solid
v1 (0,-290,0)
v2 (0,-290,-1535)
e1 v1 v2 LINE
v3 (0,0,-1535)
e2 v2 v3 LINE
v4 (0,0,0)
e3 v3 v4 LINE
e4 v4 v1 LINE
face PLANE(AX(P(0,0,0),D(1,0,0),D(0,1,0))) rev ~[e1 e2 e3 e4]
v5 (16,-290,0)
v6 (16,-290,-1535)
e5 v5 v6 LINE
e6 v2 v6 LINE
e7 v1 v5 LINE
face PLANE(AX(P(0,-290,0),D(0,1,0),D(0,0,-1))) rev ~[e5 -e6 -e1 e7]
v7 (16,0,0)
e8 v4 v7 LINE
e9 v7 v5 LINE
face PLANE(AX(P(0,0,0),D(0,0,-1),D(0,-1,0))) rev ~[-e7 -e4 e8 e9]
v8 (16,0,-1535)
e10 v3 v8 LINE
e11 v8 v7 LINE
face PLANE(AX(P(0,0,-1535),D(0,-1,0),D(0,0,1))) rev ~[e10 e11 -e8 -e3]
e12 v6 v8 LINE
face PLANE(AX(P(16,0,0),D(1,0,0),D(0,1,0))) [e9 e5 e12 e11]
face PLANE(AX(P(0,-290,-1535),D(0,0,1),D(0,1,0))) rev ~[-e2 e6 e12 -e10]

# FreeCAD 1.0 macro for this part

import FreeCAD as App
import Part
import Sketcher

V = App.Vector
Q = App.Units.Quantity


def add_polygon(sketch, points):
    """Adds a closed chain of lines whose ends are joined by coincident constraints."""
    first, n = sketch.GeometryCount, len(points)
    for a, b in zip(points, points[1:] + points[:1]):
        sketch.addGeometry(Part.LineSegment(App.Vector(*a, 0), App.Vector(*b, 0)), False)
    for i in range(n):
        sketch.addConstraint(Sketcher.Constraint("Coincident", first + i, 2, first + (i + 1) % n, 1))

doc = App.newDocument("Part")
body = doc.addObject("PartDesign::Body", "Body")

sketch1 = body.newObject("Sketcher::SketchObject", "Sketch")
sketch1.AttachmentSupport = (doc.getObject("YZ_Plane"), [""])
sketch1.MapMode = "FlatFace"
add_polygon(sketch1, [(0, -1535), (0, 0), (-290, 0), (-290, -1535)])
sketch1.addConstraint([
    Sketcher.Constraint("Vertical", 0),
    Sketcher.Constraint("Horizontal", 1),
    Sketcher.Constraint("Vertical", 2),
    Sketcher.Constraint("Horizontal", 3),
    Sketcher.Constraint("Coincident", 0, 2, -1, 1),
    Sketcher.Constraint("DistanceX", 1, 2, 1, 1, Q("290 mm")),
    Sketcher.Constraint("DistanceY", 0, 1, 0, 2, Q("1535 mm")),
])
pad1 = body.newObject("PartDesign::Pad", "Pad")
pad1.Profile = sketch1
pad1.Length = 16

doc.recompute()
